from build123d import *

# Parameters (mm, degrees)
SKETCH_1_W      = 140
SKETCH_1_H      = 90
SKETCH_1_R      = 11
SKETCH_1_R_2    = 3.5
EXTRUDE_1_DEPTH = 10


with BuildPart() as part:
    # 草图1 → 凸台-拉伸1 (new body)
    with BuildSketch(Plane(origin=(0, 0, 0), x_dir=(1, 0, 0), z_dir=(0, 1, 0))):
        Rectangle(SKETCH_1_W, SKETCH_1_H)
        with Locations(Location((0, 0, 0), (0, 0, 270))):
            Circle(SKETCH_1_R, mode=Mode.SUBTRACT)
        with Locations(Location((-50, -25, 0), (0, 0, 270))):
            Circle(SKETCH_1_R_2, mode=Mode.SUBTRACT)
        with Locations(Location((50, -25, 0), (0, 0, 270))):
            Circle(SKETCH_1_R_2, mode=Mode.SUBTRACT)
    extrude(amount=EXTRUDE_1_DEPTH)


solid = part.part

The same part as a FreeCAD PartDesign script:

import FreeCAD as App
import Part
import Sketcher
from FreeCAD import Vector

doc = App.newDocument("Part")
body = doc.addObject("PartDesign::Body", "Body")

# Sketch on XZ plane
sketch1 = doc.addObject("Sketcher::SketchObject", "Sketch")
body.addObject(sketch1)
sketch1.AttachmentSupport = (doc.XZ_Plane, [""])
sketch1.MapMode = "FlatFace"
sketch1.addGeometry(Part.LineSegment(Vector(-70, -45, 0), Vector(-70, 45, 0)), False)
sketch1.addGeometry(Part.LineSegment(Vector(-70, 45, 0), Vector(70, 45, 0)), False)
sketch1.addGeometry(Part.LineSegment(Vector(70, 45, 0), Vector(70, -45, 0)), False)
sketch1.addGeometry(Part.LineSegment(Vector(70, -45, 0), Vector(-70, -45, 0)), False)
sketch1.addGeometry(Part.Circle(Vector(-50, 25, 0), Vector(0, 0, 1), 3.5), False)
sketch1.addGeometry(Part.Circle(Vector(50, 25, 0), Vector(0, 0, 1), 3.5), False)
sketch1.addGeometry(Part.Circle(Vector(0, 0, 0), Vector(0, 0, 1), 11), False)
sketch1.addConstraint(Sketcher.Constraint("Coincident", 0, 2, 1, 1))
sketch1.addConstraint(Sketcher.Constraint("Coincident", 1, 2, 2, 1))
sketch1.addConstraint(Sketcher.Constraint("Coincident", 2, 2, 3, 1))
sketch1.addConstraint(Sketcher.Constraint("Coincident", 3, 2, 0, 1))
sketch1.addConstraint(Sketcher.Constraint("Vertical", 0))
sketch1.addConstraint(Sketcher.Constraint("Horizontal", 1))
sketch1.addConstraint(Sketcher.Constraint("Vertical", 2))
sketch1.addConstraint(Sketcher.Constraint("Horizontal", 3))
sketch1.addConstraint(Sketcher.Constraint("Coincident", 6, 3, -1, 1))
sketch1.addConstraint(Sketcher.Constraint("Equal", 4, 5))
sketch1.addConstraint(Sketcher.Constraint("Symmetric", 0, 2, 2, 2, -1, 1))
sketch1.addConstraint(Sketcher.Constraint("Symmetric", 4, 3, 5, 3, -2))
sketch1.addConstraint(Sketcher.Constraint("Diameter", 4, 7.0))
sketch1.addConstraint(Sketcher.Constraint("Diameter", 6, 22.0))
sketch1.addConstraint(Sketcher.Constraint("DistanceX", 1, 1, 1, 2, 140.0))
sketch1.addConstraint(Sketcher.Constraint("DistanceY", 0, 1, 0, 2, 90.0))
sketch1.addConstraint(Sketcher.Constraint("DistanceX", 4, 3, -1, 1, 50.0))
sketch1.addConstraint(Sketcher.Constraint("DistanceY", -1, 1, 4, 3, 25.0))
pad1 = doc.addObject("PartDesign::Pad", "Pad")
body.addObject(pad1)
pad1.Profile = sketch1
pad1.Length = 10
pad1.Reversed = True

doc.recompute()
